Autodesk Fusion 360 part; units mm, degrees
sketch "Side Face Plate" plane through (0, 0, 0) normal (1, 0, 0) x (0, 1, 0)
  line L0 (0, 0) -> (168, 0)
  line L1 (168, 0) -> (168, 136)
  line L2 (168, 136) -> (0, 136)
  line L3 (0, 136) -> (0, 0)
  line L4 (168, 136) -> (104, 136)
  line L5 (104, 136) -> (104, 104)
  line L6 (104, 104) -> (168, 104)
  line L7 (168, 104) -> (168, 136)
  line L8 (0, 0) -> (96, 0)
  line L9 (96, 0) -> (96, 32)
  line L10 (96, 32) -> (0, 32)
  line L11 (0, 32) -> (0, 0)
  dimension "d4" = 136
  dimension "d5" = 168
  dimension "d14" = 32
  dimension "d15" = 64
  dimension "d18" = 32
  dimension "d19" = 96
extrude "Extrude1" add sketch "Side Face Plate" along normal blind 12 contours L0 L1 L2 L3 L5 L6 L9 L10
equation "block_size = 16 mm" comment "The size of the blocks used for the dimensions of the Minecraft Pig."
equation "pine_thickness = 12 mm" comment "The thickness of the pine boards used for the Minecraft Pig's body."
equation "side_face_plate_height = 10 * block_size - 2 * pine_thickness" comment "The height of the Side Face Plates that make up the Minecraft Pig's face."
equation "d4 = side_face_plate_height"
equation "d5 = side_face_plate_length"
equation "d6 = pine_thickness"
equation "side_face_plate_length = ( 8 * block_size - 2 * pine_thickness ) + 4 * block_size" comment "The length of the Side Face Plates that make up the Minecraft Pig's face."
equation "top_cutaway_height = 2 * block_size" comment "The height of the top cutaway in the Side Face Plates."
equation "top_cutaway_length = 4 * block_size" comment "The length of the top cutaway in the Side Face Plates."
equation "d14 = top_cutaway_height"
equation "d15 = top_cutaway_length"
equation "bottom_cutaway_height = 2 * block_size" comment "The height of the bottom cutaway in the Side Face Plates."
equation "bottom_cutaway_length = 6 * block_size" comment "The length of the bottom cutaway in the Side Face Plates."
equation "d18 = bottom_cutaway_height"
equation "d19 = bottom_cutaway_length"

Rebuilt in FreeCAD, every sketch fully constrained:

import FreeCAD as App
import Part
import Sketcher
Q = App.Units.Quantity

doc = App.newDocument("Part")
params = doc.addObject("Spreadsheet::Sheet", "Params")
for row, (alias, value) in enumerate([
    ("sketch1_width", "64 mm"),
    ("sketch1_width2", "96 mm"),
    ("sketch1_height", "32 mm"),
    ("pad1_length", "12 mm"),
], start=1):
    params.set(f"A{row}", alias)
    params.set(f"B{row}", "=" + value)
    params.setAlias(f"B{row}", alias)

body = doc.addObject("PartDesign::Body", "Body")

# Sketch on YZ plane
sketch1 = body.newObject("Sketcher::SketchObject", "Sketch")
sketch1.AttachmentSupport = (doc.getObject("YZ_Plane"), [""])
sketch1.MapMode = "FlatFace"
sketch1.addGeometry([
    Part.LineSegment(App.Vector(96, 32, 0), App.Vector(96, 0, 0)),  # 0
    Part.LineSegment(App.Vector(96, 0, 0), App.Vector(168, 0, 0)),  # 1
    Part.LineSegment(App.Vector(168, 0, 0), App.Vector(168, 104, 0)),  # 2
    Part.LineSegment(App.Vector(168, 104, 0), App.Vector(104, 104, 0)),  # 3
    Part.LineSegment(App.Vector(104, 104, 0), App.Vector(104, 136, 0)),  # 4
    Part.LineSegment(App.Vector(104, 136, 0), App.Vector(0, 136, 0)),  # 5
    Part.LineSegment(App.Vector(0, 136, 0), App.Vector(0, 32, 0)),  # 6
    Part.LineSegment(App.Vector(0, 32, 0), App.Vector(96, 32, 0)),  # 7
], False)
sketch1.addConstraint([
    Sketcher.Constraint("Coincident", 0, 2, 1, 1),
    Sketcher.Constraint("Coincident", 1, 2, 2, 1),
    Sketcher.Constraint("Coincident", 2, 2, 3, 1),
    Sketcher.Constraint("Coincident", 3, 2, 4, 1),
    Sketcher.Constraint("Coincident", 4, 2, 5, 1),
    Sketcher.Constraint("Coincident", 5, 2, 6, 1),
    Sketcher.Constraint("Coincident", 6, 2, 7, 1),
    Sketcher.Constraint("Coincident", 7, 2, 0, 1),
    Sketcher.Constraint("Vertical", 0),
    Sketcher.Constraint("Horizontal", 1),
    Sketcher.Constraint("Vertical", 2),
    Sketcher.Constraint("Horizontal", 3),
    Sketcher.Constraint("Vertical", 4),
    Sketcher.Constraint("Horizontal", 5),
    Sketcher.Constraint("Vertical", 6),
    Sketcher.Constraint("Horizontal", 7),
    Sketcher.Constraint("PointOnObject", 0, 2, -1),
    Sketcher.Constraint("PointOnObject", 5, 2, -2),
    Sketcher.Constraint("Equal", 5, 2),
    Sketcher.Constraint("Equal", 0, 4),
    Sketcher.Constraint("DistanceX", 3, 2, 3, 1, Q("64 mm")),
    Sketcher.Constraint("DistanceX", 7, 1, 7, 2, Q("96 mm")),
    Sketcher.Constraint("DistanceY", 0, 2, 0, 1, Q("32 mm")),
    Sketcher.Constraint("DistanceX", -1, 1, 1, 2, Q("168 mm")),
])
sketch1.setExpression("Constraints[20]", "Params.sketch1_width")
sketch1.setExpression("Constraints[21]", "Params.sketch1_width2")
sketch1.setExpression("Constraints[22]", "Params.sketch1_height")
pad1 = body.newObject("PartDesign::Pad", "Pad")
pad1.Profile = sketch1
pad1.setExpression("Length", "Params.pad1_length")

doc.recompute()
